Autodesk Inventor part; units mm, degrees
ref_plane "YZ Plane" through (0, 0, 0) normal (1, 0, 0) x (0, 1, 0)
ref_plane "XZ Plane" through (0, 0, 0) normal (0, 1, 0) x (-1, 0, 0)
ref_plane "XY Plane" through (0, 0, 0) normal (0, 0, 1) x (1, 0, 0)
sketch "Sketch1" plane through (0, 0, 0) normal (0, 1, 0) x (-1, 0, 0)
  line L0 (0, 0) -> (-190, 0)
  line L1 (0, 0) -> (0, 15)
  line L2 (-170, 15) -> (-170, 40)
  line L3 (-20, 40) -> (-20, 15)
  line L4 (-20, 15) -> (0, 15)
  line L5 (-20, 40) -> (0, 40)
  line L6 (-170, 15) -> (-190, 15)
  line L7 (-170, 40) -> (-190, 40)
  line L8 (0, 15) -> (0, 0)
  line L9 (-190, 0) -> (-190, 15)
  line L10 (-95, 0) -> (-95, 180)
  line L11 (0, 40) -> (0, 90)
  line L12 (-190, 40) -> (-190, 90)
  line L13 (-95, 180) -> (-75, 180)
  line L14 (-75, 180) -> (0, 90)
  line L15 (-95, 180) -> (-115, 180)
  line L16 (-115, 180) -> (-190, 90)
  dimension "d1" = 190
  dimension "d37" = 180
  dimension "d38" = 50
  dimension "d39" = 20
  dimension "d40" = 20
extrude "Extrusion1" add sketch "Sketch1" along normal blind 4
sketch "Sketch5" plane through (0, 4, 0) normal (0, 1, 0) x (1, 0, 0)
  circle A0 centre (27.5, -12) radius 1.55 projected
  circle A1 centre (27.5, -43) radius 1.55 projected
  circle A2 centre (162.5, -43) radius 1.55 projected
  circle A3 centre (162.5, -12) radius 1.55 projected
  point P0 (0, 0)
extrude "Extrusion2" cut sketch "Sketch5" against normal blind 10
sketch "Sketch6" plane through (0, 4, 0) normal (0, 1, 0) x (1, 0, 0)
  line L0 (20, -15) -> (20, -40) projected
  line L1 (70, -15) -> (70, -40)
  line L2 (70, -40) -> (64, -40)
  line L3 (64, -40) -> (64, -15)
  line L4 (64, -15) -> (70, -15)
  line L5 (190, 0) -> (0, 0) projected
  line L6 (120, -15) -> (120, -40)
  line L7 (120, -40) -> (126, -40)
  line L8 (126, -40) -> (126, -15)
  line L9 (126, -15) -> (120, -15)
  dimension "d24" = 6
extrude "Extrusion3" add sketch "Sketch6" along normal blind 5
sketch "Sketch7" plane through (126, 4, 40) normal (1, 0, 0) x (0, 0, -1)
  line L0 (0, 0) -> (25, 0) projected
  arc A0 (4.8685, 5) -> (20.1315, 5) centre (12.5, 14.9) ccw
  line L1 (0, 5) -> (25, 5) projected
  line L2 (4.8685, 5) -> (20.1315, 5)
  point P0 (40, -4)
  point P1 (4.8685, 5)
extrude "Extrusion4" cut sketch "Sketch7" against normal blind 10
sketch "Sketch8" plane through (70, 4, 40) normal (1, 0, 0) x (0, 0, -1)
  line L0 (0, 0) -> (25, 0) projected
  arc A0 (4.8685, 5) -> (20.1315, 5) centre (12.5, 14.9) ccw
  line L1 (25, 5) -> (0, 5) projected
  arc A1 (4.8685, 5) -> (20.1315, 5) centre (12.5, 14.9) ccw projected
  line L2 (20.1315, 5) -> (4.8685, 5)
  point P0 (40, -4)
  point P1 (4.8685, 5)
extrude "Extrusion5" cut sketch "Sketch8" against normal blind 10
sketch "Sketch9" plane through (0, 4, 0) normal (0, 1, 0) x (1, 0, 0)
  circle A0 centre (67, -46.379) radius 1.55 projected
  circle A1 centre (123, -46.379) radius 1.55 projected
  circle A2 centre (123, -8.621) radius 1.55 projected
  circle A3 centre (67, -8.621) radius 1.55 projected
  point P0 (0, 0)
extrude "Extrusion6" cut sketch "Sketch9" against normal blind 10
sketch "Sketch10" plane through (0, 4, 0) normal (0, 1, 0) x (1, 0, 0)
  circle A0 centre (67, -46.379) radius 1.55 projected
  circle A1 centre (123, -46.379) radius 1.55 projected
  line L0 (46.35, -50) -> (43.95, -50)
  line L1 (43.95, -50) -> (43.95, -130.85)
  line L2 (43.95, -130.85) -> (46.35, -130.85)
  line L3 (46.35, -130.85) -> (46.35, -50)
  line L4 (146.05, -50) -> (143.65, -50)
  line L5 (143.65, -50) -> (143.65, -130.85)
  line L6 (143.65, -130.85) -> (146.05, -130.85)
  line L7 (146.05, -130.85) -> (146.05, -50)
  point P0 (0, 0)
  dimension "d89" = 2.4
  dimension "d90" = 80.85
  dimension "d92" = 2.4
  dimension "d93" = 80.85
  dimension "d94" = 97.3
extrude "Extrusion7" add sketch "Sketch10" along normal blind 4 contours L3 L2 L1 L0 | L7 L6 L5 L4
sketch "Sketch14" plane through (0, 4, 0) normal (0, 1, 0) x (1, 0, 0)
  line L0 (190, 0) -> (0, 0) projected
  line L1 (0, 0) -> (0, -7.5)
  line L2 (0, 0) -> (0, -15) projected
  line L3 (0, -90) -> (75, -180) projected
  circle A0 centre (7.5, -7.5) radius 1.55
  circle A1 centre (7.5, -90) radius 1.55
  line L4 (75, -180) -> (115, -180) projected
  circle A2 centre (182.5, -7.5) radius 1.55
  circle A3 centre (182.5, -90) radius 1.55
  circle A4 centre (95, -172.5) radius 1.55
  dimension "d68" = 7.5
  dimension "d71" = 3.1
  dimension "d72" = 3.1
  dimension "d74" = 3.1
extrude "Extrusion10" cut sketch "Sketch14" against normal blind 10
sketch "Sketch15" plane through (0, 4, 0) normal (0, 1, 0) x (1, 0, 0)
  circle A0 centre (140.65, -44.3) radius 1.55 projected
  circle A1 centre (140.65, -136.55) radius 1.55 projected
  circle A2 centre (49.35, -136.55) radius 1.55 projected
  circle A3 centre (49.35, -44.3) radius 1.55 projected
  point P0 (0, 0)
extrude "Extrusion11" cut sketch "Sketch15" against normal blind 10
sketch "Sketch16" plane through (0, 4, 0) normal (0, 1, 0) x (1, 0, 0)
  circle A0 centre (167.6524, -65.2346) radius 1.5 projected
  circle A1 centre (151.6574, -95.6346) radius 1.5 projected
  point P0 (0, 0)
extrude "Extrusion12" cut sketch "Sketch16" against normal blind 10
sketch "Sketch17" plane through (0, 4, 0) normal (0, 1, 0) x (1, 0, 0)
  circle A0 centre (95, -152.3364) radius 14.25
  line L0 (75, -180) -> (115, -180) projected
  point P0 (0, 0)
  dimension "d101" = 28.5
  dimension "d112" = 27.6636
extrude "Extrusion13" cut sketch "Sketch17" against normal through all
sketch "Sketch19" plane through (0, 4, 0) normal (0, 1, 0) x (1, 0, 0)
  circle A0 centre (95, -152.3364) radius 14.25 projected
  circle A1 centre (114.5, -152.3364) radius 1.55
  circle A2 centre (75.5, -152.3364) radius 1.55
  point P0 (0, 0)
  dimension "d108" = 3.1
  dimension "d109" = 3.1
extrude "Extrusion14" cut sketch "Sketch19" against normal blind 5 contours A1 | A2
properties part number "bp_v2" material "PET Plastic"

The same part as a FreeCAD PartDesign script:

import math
import FreeCAD as App
import Part
import Sketcher

V = App.Vector

doc = App.newDocument("Part")
body = doc.addObject("PartDesign::Body", "Body")

# Sketch on XZ plane
sketch1 = body.newObject("Sketcher::SketchObject", "Sketch")
sketch1.AttachmentSupport = (doc.getObject("XZ_Plane"), [""])
sketch1.MapMode = "FlatFace"
sketch1.addGeometry([
    Part.LineSegment(V(0, 0, 0), V(0, 15, 0)),  # 0
    Part.LineSegment(V(0, 15, 0), V(20, 15, 0)),  # 1
    Part.LineSegment(V(20, 15, 0), V(20, 40, 0)),  # 2
    Part.LineSegment(V(20, 40, 0), V(0, 40, 0)),  # 3
    Part.LineSegment(V(0, 40, 0), V(0, 90, 0)),  # 4
    Part.LineSegment(V(0, 90, 0), V(75, 180, 0)),  # 5
    Part.LineSegment(V(75, 180, 0), V(115, 180, 0)),  # 6
    Part.LineSegment(V(115, 180, 0), V(190, 90, 0)),  # 7
    Part.LineSegment(V(190, 90, 0), V(190, 40, 0)),  # 8
    Part.LineSegment(V(190, 40, 0), V(170, 40, 0)),  # 9
    Part.LineSegment(V(170, 40, 0), V(170, 15, 0)),  # 10
    Part.LineSegment(V(170, 15, 0), V(190, 15, 0)),  # 11
    Part.LineSegment(V(190, 15, 0), V(190, 0, 0)),  # 12
    Part.LineSegment(V(190, 0, 0), V(0, 0, 0)),  # 13
], False)
sketch1.addConstraint([
    Sketcher.Constraint("Coincident", 0, 2, 1, 1),
    Sketcher.Constraint("Coincident", 1, 2, 2, 1),
    Sketcher.Constraint("Coincident", 2, 2, 3, 1),
    Sketcher.Constraint("Coincident", 3, 2, 4, 1),
    Sketcher.Constraint("Coincident", 4, 2, 5, 1),
    Sketcher.Constraint("Coincident", 5, 2, 6, 1),
    Sketcher.Constraint("Coincident", 6, 2, 7, 1),
    Sketcher.Constraint("Coincident", 7, 2, 8, 1),
    Sketcher.Constraint("Coincident", 8, 2, 9, 1),
    Sketcher.Constraint("Coincident", 9, 2, 10, 1),
    Sketcher.Constraint("Coincident", 10, 2, 11, 1),
    Sketcher.Constraint("Coincident", 11, 2, 12, 1),
    Sketcher.Constraint("Coincident", 12, 2, 13, 1),
    Sketcher.Constraint("Coincident", 13, 2, 0, 1),
    Sketcher.Constraint("Vertical", 0),
    Sketcher.Constraint("Horizontal", 1),
    Sketcher.Constraint("Vertical", 2),
    Sketcher.Constraint("Horizontal", 3),
    Sketcher.Constraint("Vertical", 4),
    Sketcher.Constraint("Horizontal", 6),
    Sketcher.Constraint("Vertical", 8),
    Sketcher.Constraint("Horizontal", 9),
    Sketcher.Constraint("Vertical", 10),
    Sketcher.Constraint("Horizontal", 11),
    Sketcher.Constraint("Vertical", 12),
    Sketcher.Constraint("Horizontal", 13),
    Sketcher.Constraint("Coincident", 13, 2, -1, 1),
    Sketcher.Constraint("PointOnObject", 3, 2, -2),
    Sketcher.Constraint("Horizontal", 4, 2, 7, 2),
    Sketcher.Constraint("Horizontal", 3, 2, 8, 2),
    Sketcher.Constraint("Horizontal", 1, 2, 10, 2),
    Sketcher.Constraint("Vertical", 8, 2, 11, 2),
    Sketcher.Constraint("Equal", 3, 9),
    Sketcher.Constraint("Equal", 5, 7),
    Sketcher.Constraint("DistanceX", 1, 1, 1, 2, 20.0),
    Sketcher.Constraint("DistanceX", 13, 2, 13, 1, 190.0),
    Sketcher.Constraint("DistanceY", 4, 1, 4, 2, 50.0),
    Sketcher.Constraint("DistanceY", -1, 1, 5, 2, 180.0),
    Sketcher.Constraint("DistanceX", 6, 1, 6, 2, 40.0),
    Sketcher.Constraint("DistanceY", 0, 1, 0, 2, 15.0),
    Sketcher.Constraint("DistanceY", 2, 1, 2, 2, 25.0),
])
pad1 = body.newObject("PartDesign::Pad", "Pad")
pad1.Profile = sketch1
pad1.Length = 4
pad1.Reversed = True

# Sketch on XZ plane
sketch2 = body.newObject("Sketcher::SketchObject", "Sketch001")
sketch2.AttachmentSupport = (doc.getObject("XZ_Plane"), [""])
sketch2.MapMode = "FlatFace"
sketch2.AttachmentOffset = App.Placement(V(0, 0, -4), App.Rotation())
sketch2.addGeometry([
    Part.Circle(V(27.5, 12, 0), V(0, 0, 1), 1.6),
    Part.Circle(V(27.5, 43, 0), V(0, 0, 1), 1.6),
    Part.Circle(V(162.5, 43, 0), V(0, 0, 1), 1.6),
    Part.Circle(V(162.5, 12, 0), V(0, 0, 1), 1.6),
], False)
sketch2.addConstraint([
    Sketcher.Constraint("Equal", 0, 1),
    Sketcher.Constraint("Equal", 1, 2),
    Sketcher.Constraint("Equal", 2, 3),
    Sketcher.Constraint("Horizontal", 1, 3, 2, 3),
    Sketcher.Constraint("Horizontal", 0, 3, 3, 3),
    Sketcher.Constraint("Vertical", 0, 3, 1, 3),
    Sketcher.Constraint("Vertical", 2, 3, 3, 3),
    Sketcher.Constraint("Diameter", 0, 3.1),
    Sketcher.Constraint("DistanceY", -1, 1, 0, 3, 12.0),
    Sketcher.Constraint("DistanceY", -1, 1, 1, 3, 43.0),
    Sketcher.Constraint("DistanceX", 1, 3, 2, 3, 135.0),
    Sketcher.Constraint("DistanceX", -1, 1, 0, 3, 27.5),
])
pocket1 = body.newObject("PartDesign::Pocket", "Pocket")
pocket1.Profile = sketch2
pocket1.Length = 10
pocket1.Reversed = True

# Sketch on XZ plane
sketch3 = body.newObject("Sketcher::SketchObject", "Sketch002")
sketch3.AttachmentSupport = (doc.getObject("XZ_Plane"), [""])
sketch3.MapMode = "FlatFace"
sketch3.AttachmentOffset = App.Placement(V(0, 0, -4), App.Rotation())
sketch3.addGeometry([
    Part.LineSegment(V(70, 40, 0), V(70, 15, 0)),  # 0
    Part.LineSegment(V(70, 15, 0), V(64, 15, 0)),  # 1
    Part.LineSegment(V(64, 15, 0), V(64, 40, 0)),  # 2
    Part.LineSegment(V(64, 40, 0), V(70, 40, 0)),  # 3
    Part.LineSegment(V(126, 15, 0), V(120, 15, 0)),  # 4
    Part.LineSegment(V(120, 15, 0), V(120, 40, 0)),  # 5
    Part.LineSegment(V(120, 40, 0), V(126, 40, 0)),  # 6
    Part.LineSegment(V(126, 40, 0), V(126, 15, 0)),  # 7
], False)
sketch3.addConstraint([
    Sketcher.Constraint("Coincident", 0, 2, 1, 1),
    Sketcher.Constraint("Coincident", 1, 2, 2, 1),
    Sketcher.Constraint("Coincident", 2, 2, 3, 1),
    Sketcher.Constraint("Coincident", 3, 2, 0, 1),
    Sketcher.Constraint("Coincident", 4, 2, 5, 1),
    Sketcher.Constraint("Coincident", 5, 2, 6, 1),
    Sketcher.Constraint("Coincident", 6, 2, 7, 1),
    Sketcher.Constraint("Coincident", 7, 2, 4, 1),
    Sketcher.Constraint("Vertical", 0),
    Sketcher.Constraint("Horizontal", 1),
    Sketcher.Constraint("Vertical", 2),
    Sketcher.Constraint("Horizontal", 3),
    Sketcher.Constraint("Horizontal", 4),
    Sketcher.Constraint("Vertical", 5),
    Sketcher.Constraint("Horizontal", 6),
    Sketcher.Constraint("Vertical", 7),
    Sketcher.Constraint("Horizontal", 1, 2, 4, 2),
    Sketcher.Constraint("Horizontal", 3, 2, 5, 2),
    Sketcher.Constraint("Equal", 3, 4),
    Sketcher.Constraint("DistanceX", 1, 2, 1, 1, 6.0),
    Sketcher.Constraint("DistanceY", 0, 2, 0, 1, 25.0),
    Sketcher.Constraint("DistanceX", -1, 1, 0, 2, 70.0),
    Sketcher.Constraint("DistanceY", -1, 1, 0, 2, 15.0),
    Sketcher.Constraint("DistanceX", -1, 1, 4, 2, 120.0),
])
pad2 = body.newObject("PartDesign::Pad", "Pad001")
pad2.Profile = sketch3
pad2.Length = 5
pad2.Reversed = True

# Sketch on YZ plane
sketch4 = body.newObject("Sketcher::SketchObject", "Sketch003")
sketch4.AttachmentSupport = (doc.getObject("YZ_Plane"), [""])
sketch4.MapMode = "FlatFace"
sketch4.AttachmentOffset = App.Placement(V(0, 0, 126), App.Rotation())
sketch4.addGeometry([
    Part.LineSegment(V(9, 20, 0), V(9, 35, 0)),
    Part.ArcOfCircle(Part.Circle(V(19, 28, 0), V(0, 0, 1), 12), math.radians(142), math.radians(218)),
], False)
sketch4.addConstraint([
    Sketcher.Constraint("Coincident", 0, 1, 1, 2),
    Sketcher.Constraint("Coincident", 1, 1, 0, 2),
    Sketcher.Constraint("Vertical", 0),
    Sketcher.Constraint("Radius", 1, 12.5),
    Sketcher.Constraint("DistanceX", -1, 1, 0, 1, 9.0),
    Sketcher.Constraint("DistanceX", -1, 1, 1, 3, 18.9),
    Sketcher.Constraint("DistanceY", -1, 1, 1, 3, 27.5),
])
pocket2 = body.newObject("PartDesign::Pocket", "Pocket001")
pocket2.Profile = sketch4
pocket2.Length = 10

# Sketch on YZ plane
sketch5 = body.newObject("Sketcher::SketchObject", "Sketch004")
sketch5.AttachmentSupport = (doc.getObject("YZ_Plane"), [""])
sketch5.MapMode = "FlatFace"
sketch5.AttachmentOffset = App.Placement(V(0, 0, 70), App.Rotation())
sketch5.addGeometry([
    Part.LineSegment(V(9, 20, 0), V(9, 35, 0)),
    Part.ArcOfCircle(Part.Circle(V(19, 28, 0), V(0, 0, 1), 12), math.radians(142), math.radians(218)),
], False)
sketch5.addConstraint([
    Sketcher.Constraint("Coincident", 0, 1, 1, 2),
    Sketcher.Constraint("Coincident", 1, 1, 0, 2),
    Sketcher.Constraint("Vertical", 0),
    Sketcher.Constraint("Radius", 1, 12.5),
    Sketcher.Constraint("DistanceX", -1, 1, 0, 1, 9.0),
    Sketcher.Constraint("DistanceX", -1, 1, 1, 3, 18.9),
    Sketcher.Constraint("DistanceY", -1, 1, 1, 3, 27.5),
])
pocket3 = body.newObject("PartDesign::Pocket", "Pocket002")
pocket3.Profile = sketch5
pocket3.Length = 10

# Sketch on XZ plane
sketch6 = body.newObject("Sketcher::SketchObject", "Sketch005")
sketch6.AttachmentSupport = (doc.getObject("XZ_Plane"), [""])
sketch6.MapMode = "FlatFace"
sketch6.AttachmentOffset = App.Placement(V(0, 0, -4), App.Rotation())
sketch6.addGeometry([
    Part.Circle(V(67, 46.4, 0), V(0, 0, 1), 1.6),
    Part.Circle(V(123, 46.4, 0), V(0, 0, 1), 1.6),
    Part.Circle(V(123, 8.6, 0), V(0, 0, 1), 1.6),
    Part.Circle(V(67, 8.6, 0), V(0, 0, 1), 1.6),
], False)
sketch6.addConstraint([
    Sketcher.Constraint("Equal", 0, 1),
    Sketcher.Constraint("Equal", 1, 2),
    Sketcher.Constraint("Equal", 2, 3),
    Sketcher.Constraint("Horizontal", 0, 3, 1, 3),
    Sketcher.Constraint("Horizontal", 2, 3, 3, 3),
    Sketcher.Constraint("Vertical", 1, 3, 2, 3),
    Sketcher.Constraint("Vertical", 0, 3, 3, 3),
    Sketcher.Constraint("Diameter", 0, 3.1),
    Sketcher.Constraint("DistanceX", -1, 1, 0, 3, 67.0),
    Sketcher.Constraint("DistanceX", -1, 1, 1, 3, 123.0),
    Sketcher.Constraint("DistanceY", -1, 1, 0, 3, 46.379),
    Sketcher.Constraint("DistanceY", -1, 1, 2, 3, 8.621),
])
pocket4 = body.newObject("PartDesign::Pocket", "Pocket003")
pocket4.Profile = sketch6
pocket4.Length = 10
pocket4.Reversed = True

# Sketch on XZ plane
sketch7 = body.newObject("Sketcher::SketchObject", "Sketch006")
sketch7.AttachmentSupport = (doc.getObject("XZ_Plane"), [""])
sketch7.MapMode = "FlatFace"
sketch7.AttachmentOffset = App.Placement(V(0, 0, -4), App.Rotation())
sketch7.addGeometry([
    Part.LineSegment(V(46.4, 130.8, 0), V(46.4, 50, 0)),  # 0
    Part.LineSegment(V(46.4, 50, 0), V(44, 50, 0)),  # 1
    Part.LineSegment(V(44, 50, 0), V(44, 130.8, 0)),  # 2
    Part.LineSegment(V(44, 130.8, 0), V(46.4, 130.8, 0)),  # 3
    Part.LineSegment(V(146.1, 130.8, 0), V(146.1, 50, 0)),  # 4
    Part.LineSegment(V(146.1, 50, 0), V(143.7, 50, 0)),  # 5
    Part.LineSegment(V(143.7, 50, 0), V(143.7, 130.8, 0)),  # 6
    Part.LineSegment(V(143.7, 130.8, 0), V(146.1, 130.8, 0)),  # 7
], False)
sketch7.addConstraint([
    Sketcher.Constraint("Coincident", 0, 2, 1, 1),
    Sketcher.Constraint("Coincident", 1, 2, 2, 1),
    Sketcher.Constraint("Coincident", 2, 2, 3, 1),
    Sketcher.Constraint("Coincident", 3, 2, 0, 1),
    Sketcher.Constraint("Coincident", 4, 2, 5, 1),
    Sketcher.Constraint("Coincident", 5, 2, 6, 1),
    Sketcher.Constraint("Coincident", 6, 2, 7, 1),
    Sketcher.Constraint("Coincident", 7, 2, 4, 1),
    Sketcher.Constraint("Vertical", 0),
    Sketcher.Constraint("Horizontal", 1),
    Sketcher.Constraint("Vertical", 2),
    Sketcher.Constraint("Horizontal", 3),
    Sketcher.Constraint("Vertical", 4),
    Sketcher.Constraint("Horizontal", 5),
    Sketcher.Constraint("Vertical", 6),
    Sketcher.Constraint("Horizontal", 7),
    Sketcher.Constraint("Horizontal", 1, 2, 4, 2),
    Sketcher.Constraint("Horizontal", 3, 2, 6, 2),
    Sketcher.Constraint("Equal", 3, 5),
    Sketcher.Constraint("DistanceX", 1, 2, 1, 1, 2.4),
    Sketcher.Constraint("DistanceY", 0, 2, 0, 1, 80.85),
    Sketcher.Constraint("DistanceX", 0, 2, 5, 2, 97.3),
    Sketcher.Constraint("DistanceY", -1, 1, 0, 2, 50.0),
    Sketcher.Constraint("DistanceX", -1, 1, 0, 2, 46.35),
])
pad3 = body.newObject("PartDesign::Pad", "Pad002")
pad3.Profile = sketch7
pad3.Length = 4
pad3.Reversed = True

# Sketch on XZ plane
sketch8 = body.newObject("Sketcher::SketchObject", "Sketch007")
sketch8.AttachmentSupport = (doc.getObject("XZ_Plane"), [""])
sketch8.MapMode = "FlatFace"
sketch8.AttachmentOffset = App.Placement(V(0, 0, -4), App.Rotation())
sketch8.addGeometry([
    Part.Circle(V(7.5, 7.5, 0), V(0, 0, 1), 1.6),  # 0
    Part.Circle(V(7.5, 90, 0), V(0, 0, 1), 1.6),  # 1
    Part.Circle(V(182.5, 7.5, 0), V(0, 0, 1), 1.6),  # 2
    Part.Circle(V(182.5, 90, 0), V(0, 0, 1), 1.6),  # 3
    Part.Circle(V(95, 172.5, 0), V(0, 0, 1), 1.6),  # 4
], False)
sketch8.addConstraint([
    Sketcher.Constraint("Equal", 0, 1),
    Sketcher.Constraint("Equal", 1, 2),
    Sketcher.Constraint("Equal", 2, 3),
    Sketcher.Constraint("Equal", 3, 4),
    Sketcher.Constraint("Horizontal", 0, 3, 2, 3),
    Sketcher.Constraint("Horizontal", 1, 3, 3, 3),
    Sketcher.Constraint("Vertical", 0, 3, 1, 3),
    Sketcher.Constraint("Vertical", 2, 3, 3, 3),
    Sketcher.Constraint("Diameter", 0, 3.1),
    Sketcher.Constraint("DistanceX", -1, 1, 0, 3, 7.5),
    Sketcher.Constraint("DistanceY", -1, 1, 0, 3, 7.5),
    Sketcher.Constraint("DistanceY", -1, 1, 1, 3, 90.0),
    Sketcher.Constraint("DistanceX", -1, 1, 4, 3, 95.0),
    Sketcher.Constraint("DistanceX", 0, 3, 2, 3, 175.0),
    Sketcher.Constraint("DistanceY", 0, 3, 4, 3, 165.0),
])
pocket5 = body.newObject("PartDesign::Pocket", "Pocket004")
pocket5.Profile = sketch8
pocket5.Length = 10
pocket5.Reversed = True

# Sketch on XZ plane
sketch9 = body.newObject("Sketcher::SketchObject", "Sketch008")
sketch9.AttachmentSupport = (doc.getObject("XZ_Plane"), [""])
sketch9.MapMode = "FlatFace"
sketch9.AttachmentOffset = App.Placement(V(0, 0, -4), App.Rotation())
sketch9.addGeometry([
    Part.Circle(V(140.7, 44.3, 0), V(0, 0, 1), 1.6),
    Part.Circle(V(140.7, 136.6, 0), V(0, 0, 1), 1.6),
    Part.Circle(V(49.4, 136.6, 0), V(0, 0, 1), 1.6),
    Part.Circle(V(49.4, 44.3, 0), V(0, 0, 1), 1.6),
], False)
sketch9.addConstraint([
    Sketcher.Constraint("Equal", 0, 1),
    Sketcher.Constraint("Equal", 1, 2),
    Sketcher.Constraint("Equal", 2, 3),
    Sketcher.Constraint("Horizontal", 1, 3, 2, 3),
    Sketcher.Constraint("Horizontal", 0, 3, 3, 3),
    Sketcher.Constraint("Vertical", 0, 3, 1, 3),
    Sketcher.Constraint("Vertical", 2, 3, 3, 3),
    Sketcher.Constraint("Diameter", 0, 3.1),
    Sketcher.Constraint("DistanceY", -1, 1, 0, 3, 44.3),
    Sketcher.Constraint("DistanceX", 2, 3, 1, 3, 91.3),
    Sketcher.Constraint("DistanceX", -1, 1, 0, 3, 140.65),
    Sketcher.Constraint("DistanceY", -1, 1, 1, 3, 136.55),
])
pocket6 = body.newObject("PartDesign::Pocket", "Pocket005")
pocket6.Profile = sketch9
pocket6.Length = 10
pocket6.Reversed = True

# Sketch on XZ plane
sketch10 = body.newObject("Sketcher::SketchObject", "Sketch009")
sketch10.AttachmentSupport = (doc.getObject("XZ_Plane"), [""])
sketch10.MapMode = "FlatFace"
sketch10.AttachmentOffset = App.Placement(V(0, 0, -4), App.Rotation())
sketch10.addGeometry([
    Part.Circle(V(167.7, 65.2, 0), V(0, 0, 1), 1.5),
    Part.Circle(V(151.7, 95.6, 0), V(0, 0, 1), 1.5),
], False)
sketch10.addConstraint([
    Sketcher.Constraint("Equal", 0, 1),
    Sketcher.Constraint("Diameter", 0, 3.0),
    Sketcher.Constraint("DistanceY", 0, 3, 1, 3, 30.4),
    Sketcher.Constraint("DistanceX", 1, 3, 0, 3, 15.995),
    Sketcher.Constraint("DistanceX", -1, 1, 0, 3, 167.6524),
    Sketcher.Constraint("DistanceY", -1, 1, 0, 3, 65.2346),
])
pocket7 = body.newObject("PartDesign::Pocket", "Pocket006")
pocket7.Profile = sketch10
pocket7.Length = 10
pocket7.Reversed = True

# Sketch on XZ plane
sketch11 = body.newObject("Sketcher::SketchObject", "Sketch010")
sketch11.AttachmentSupport = (doc.getObject("XZ_Plane"), [""])
sketch11.MapMode = "FlatFace"
sketch11.AttachmentOffset = App.Placement(V(0, 0, -4), App.Rotation())
sketch11.addGeometry(Part.Circle(V(95, 152, 0), V(0, 0, 1), 14), False)
sketch11.addConstraint([
    Sketcher.Constraint("Diameter", 0, 28.5),
    Sketcher.Constraint("DistanceX", -1, 1, 0, 3, 95.0),
    Sketcher.Constraint("DistanceY", -1, 1, 0, 3, 152.3364),
])
pocket8 = body.newObject("PartDesign::Pocket", "Pocket007")
pocket8.Profile = sketch11
pocket8.Type = "ThroughAll"
pocket8.Reversed = True

# Sketch on XZ plane
sketch12 = body.newObject("Sketcher::SketchObject", "Sketch011")
sketch12.AttachmentSupport = (doc.getObject("XZ_Plane"), [""])
sketch12.MapMode = "FlatFace"
sketch12.AttachmentOffset = App.Placement(V(0, 0, -4), App.Rotation())
sketch12.addGeometry([
    Part.Circle(V(114.5, 152.3, 0), V(0, 0, 1), 1.6),
    Part.Circle(V(75.5, 152.3, 0), V(0, 0, 1), 1.6),
], False)
sketch12.addConstraint([
    Sketcher.Constraint("Equal", 0, 1),
    Sketcher.Constraint("Horizontal", 0, 3, 1, 3),
    Sketcher.Constraint("Diameter", 0, 3.1),
    Sketcher.Constraint("DistanceX", 1, 3, 0, 3, 39.0),
    Sketcher.Constraint("DistanceX", -1, 1, 0, 3, 114.5),
    Sketcher.Constraint("DistanceY", -1, 1, 0, 3, 152.3364),
])
pocket9 = body.newObject("PartDesign::Pocket", "Pocket008")
pocket9.Profile = sketch12
pocket9.Length = 5
pocket9.Reversed = True

doc.recompute()
